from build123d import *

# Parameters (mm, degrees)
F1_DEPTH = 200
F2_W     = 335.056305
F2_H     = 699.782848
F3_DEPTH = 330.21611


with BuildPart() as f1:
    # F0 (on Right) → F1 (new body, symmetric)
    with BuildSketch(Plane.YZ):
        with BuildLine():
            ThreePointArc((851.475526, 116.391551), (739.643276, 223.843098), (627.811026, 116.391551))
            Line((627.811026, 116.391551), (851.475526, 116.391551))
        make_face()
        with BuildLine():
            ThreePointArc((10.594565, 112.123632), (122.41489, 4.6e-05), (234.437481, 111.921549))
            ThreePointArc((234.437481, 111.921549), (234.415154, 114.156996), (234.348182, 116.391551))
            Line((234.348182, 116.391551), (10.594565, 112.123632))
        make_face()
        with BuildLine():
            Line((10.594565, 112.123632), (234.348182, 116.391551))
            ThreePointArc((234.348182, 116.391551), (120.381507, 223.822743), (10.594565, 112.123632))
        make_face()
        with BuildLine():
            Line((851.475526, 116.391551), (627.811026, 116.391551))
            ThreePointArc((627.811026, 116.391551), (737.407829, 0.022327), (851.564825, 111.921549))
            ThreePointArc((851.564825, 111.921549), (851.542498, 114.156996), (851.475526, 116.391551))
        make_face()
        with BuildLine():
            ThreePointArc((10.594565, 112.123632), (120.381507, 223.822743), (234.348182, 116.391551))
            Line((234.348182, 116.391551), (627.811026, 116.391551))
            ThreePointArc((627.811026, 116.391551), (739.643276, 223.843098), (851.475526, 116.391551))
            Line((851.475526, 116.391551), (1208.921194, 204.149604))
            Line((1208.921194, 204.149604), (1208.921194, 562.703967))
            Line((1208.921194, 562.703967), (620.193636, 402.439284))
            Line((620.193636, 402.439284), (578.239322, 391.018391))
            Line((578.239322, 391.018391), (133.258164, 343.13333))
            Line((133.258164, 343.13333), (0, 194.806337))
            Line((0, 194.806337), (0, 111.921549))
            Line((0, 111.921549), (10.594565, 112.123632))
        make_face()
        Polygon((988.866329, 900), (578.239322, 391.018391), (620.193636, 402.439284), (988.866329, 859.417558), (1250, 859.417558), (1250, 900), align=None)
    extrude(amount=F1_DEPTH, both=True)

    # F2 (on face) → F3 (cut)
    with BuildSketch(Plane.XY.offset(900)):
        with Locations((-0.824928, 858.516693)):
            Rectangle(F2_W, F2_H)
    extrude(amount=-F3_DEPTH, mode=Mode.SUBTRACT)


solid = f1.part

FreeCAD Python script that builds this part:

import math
import FreeCAD as App
import Part
import Sketcher

V = App.Vector


def add_polygon(sketch, points):
    """Adds a closed chain of lines whose ends are joined by coincident constraints."""
    first, n = sketch.GeometryCount, len(points)
    for a, b in zip(points, points[1:] + points[:1]):
        sketch.addGeometry(Part.LineSegment(App.Vector(*a, 0), App.Vector(*b, 0)), False)
    for i in range(n):
        sketch.addConstraint(Sketcher.Constraint("Coincident", first + i, 2, first + (i + 1) % n, 1))

doc = App.newDocument("Part")
body = doc.addObject("PartDesign::Body", "Body")

sketch1 = doc.addObject("Sketcher::SketchObject", "Sketch")
body.addObject(sketch1)
sketch1.AttachmentSupport = (doc.YZ_Plane, [""])
sketch1.MapMode = "FlatFace"
sketch1.addGeometry([
    Part.ArcOfCircle(Part.Circle(V(739.6, 111.9, 0), V(0, 0, 1), 111.9), math.radians(178), math.radians(360)),
    Part.ArcOfCircle(Part.Circle(V(739.6, 111.9, 0), V(0, 0, 1), 111.9), math.radians(0), math.radians(2.29)),
    Part.LineSegment(V(851.5, 116.4, 0), V(1208.9, 204.1, 0)),
    Part.LineSegment(V(1208.9, 204.1, 0), V(1208.9, 562.7, 0)),
    Part.LineSegment(V(1208.9, 562.7, 0), V(620.2, 402.4, 0)),
    Part.LineSegment(V(620.2, 402.4, 0), V(988.9, 859.4, 0)),
    Part.LineSegment(V(988.9, 859.4, 0), V(1250, 859.4, 0)),
    Part.LineSegment(V(1250, 859.4, 0), V(1250, 900, 0)),
    Part.LineSegment(V(1250, 900, 0), V(988.9, 900, 0)),
    Part.LineSegment(V(988.9, 900, 0), V(578.2, 391, 0)),
    Part.LineSegment(V(578.2, 391, 0), V(133.3, 343.1, 0)),
    Part.LineSegment(V(133.3, 343.1, 0), V(0, 194.8, 0)),
    Part.LineSegment(V(0, 194.8, 0), V(0, 111.9, 0)),
    Part.LineSegment(V(0, 111.9, 0), V(10.6, 112.1, 0)),
    Part.ArcOfCircle(Part.Circle(V(122.5, 111.9, 0), V(0, 0, 1), 111.9), math.radians(180), math.radians(360)),
    Part.ArcOfCircle(Part.Circle(V(122.5, 111.9, 0), V(0, 0, 1), 111.9), math.radians(0), math.radians(2.29)),
    Part.LineSegment(V(234.3, 116.4, 0), V(627.8, 116.4, 0)),
], False)
sketch1.addConstraint([
    Sketcher.Constraint("Tangent", 0, 2, 1, 1),
    Sketcher.Constraint("Coincident", 1, 2, 2, 1),
    Sketcher.Constraint("Coincident", 2, 2, 3, 1),
    Sketcher.Constraint("Coincident", 3, 2, 4, 1),
    Sketcher.Constraint("Coincident", 4, 2, 5, 1),
    Sketcher.Constraint("Coincident", 5, 2, 6, 1),
    Sketcher.Constraint("Coincident", 6, 2, 7, 1),
    Sketcher.Constraint("Coincident", 7, 2, 8, 1),
    Sketcher.Constraint("Coincident", 8, 2, 9, 1),
    Sketcher.Constraint("Coincident", 9, 2, 10, 1),
    Sketcher.Constraint("Coincident", 10, 2, 11, 1),
    Sketcher.Constraint("Coincident", 11, 2, 12, 1),
    Sketcher.Constraint("Coincident", 12, 2, 13, 1),
    Sketcher.Constraint("Coincident", 13, 2, 14, 1),
    Sketcher.Constraint("Tangent", 14, 2, 15, 1),
    Sketcher.Constraint("Coincident", 15, 2, 16, 1),
    Sketcher.Constraint("Coincident", 16, 2, 0, 1),
    Sketcher.Constraint("Vertical", 3),
    Sketcher.Constraint("Horizontal", 6),
    Sketcher.Constraint("Vertical", 7),
    Sketcher.Constraint("Horizontal", 8),
    Sketcher.Constraint("Vertical", 12),
    Sketcher.Constraint("Horizontal", 16),
    Sketcher.Constraint("Equal", 0, 14),
    Sketcher.Constraint("Equal", 1, 15),
    Sketcher.Constraint("PointOnObject", 11, 2, -2),
    Sketcher.Constraint("Parallel", 5, 9),
    Sketcher.Constraint("Horizontal", 0, 3, 14, 3),
    Sketcher.Constraint("Horizontal", 14, 3, 0, 2),
    Sketcher.Constraint("Horizontal", 0, 2, 12, 2),
    Sketcher.Constraint("Horizontal", 12, 2, 14, 2),
    Sketcher.Constraint("Horizontal", 1, 2, 15, 2),
    Sketcher.Constraint("Vertical", 5, 2, 8, 2),
    Sketcher.Constraint("DistanceX", -1, 1, 6, 2, 1250.0),
    Sketcher.Constraint("DistanceY", -1, 1, 7, 2, 900.0),
    Sketcher.Constraint("Radius", 0, 111.921549),
    Sketcher.Constraint("DistanceY", 14, 3, 1, 2, 4.470001),
    Sketcher.Constraint("Radius", 1, 111.921252),
    Sketcher.Constraint("DistanceX", 6, 1, 6, 2, 261.133671),
    Sketcher.Constraint("DistanceY", 12, 2, 12, 1, 82.884788),
    Sketcher.Constraint("DistanceX", 13, 2, 10, 2, 122.663599),
    Sketcher.Constraint("DistanceY", 13, 2, 10, 2, 231.009698),
    Sketcher.Constraint("Distance", 10, 447.550232),
    Sketcher.Constraint("DistanceX", 16, 1, 16, 2, 393.462844),
    Sketcher.Constraint("DistanceY", 3, 1, 3, 2, 358.554363),
    Sketcher.Constraint("DistanceY", 7, 1, 7, 2, 40.582442),
    Sketcher.Constraint("DistanceY", -1, 1, 0, 3, 111.921549),
    Sketcher.Constraint("DistanceX", -1, 1, 14, 3, 122.515932),
    Sketcher.Constraint("DistanceX", -1, 1, 9, 2, 578.239322),
    Sketcher.Constraint("DistanceY", -1, 1, 9, 2, 391.018391),
    Sketcher.Constraint("DistanceX", 0, 2, 2, 2, 357.356369),
    Sketcher.Constraint("DistanceY", 0, 2, 3, 2, 450.782418),
    Sketcher.Constraint("DistanceX", 4, 2, 0, 3, 119.44964),
])
pad1 = doc.addObject("PartDesign::Pad", "Pad")
body.addObject(pad1)
pad1.Profile = sketch1
pad1.Length = 400
pad1.Midplane = True

sketch2 = doc.addObject("Sketcher::SketchObject", "Sketch001")
body.addObject(sketch2)
sketch2.AttachmentSupport = (doc.XY_Plane, [""])
sketch2.MapMode = "FlatFace"
sketch2.AttachmentOffset = App.Placement(V(0, 0, 900), App.Rotation())
add_polygon(sketch2, [(-168, 1208), (-168, 509), (167, 509), (167, 1208)])
sketch2.addConstraint([
    Sketcher.Constraint("Vertical", 0),
    Sketcher.Constraint("Horizontal", 1),
    Sketcher.Constraint("Vertical", 2),
    Sketcher.Constraint("Horizontal", 3),
    Sketcher.Constraint("DistanceX", 1, 1, 1, 2, 335.056305),
    Sketcher.Constraint("DistanceY", 0, 2, 0, 1, 699.782848),
    Sketcher.Constraint("DistanceX", 0, 2, -1, 1, 168.353081),
    Sketcher.Constraint("DistanceY", -1, 1, 0, 2, 508.625269),
])
pocket1 = doc.addObject("PartDesign::Pocket", "Pocket")
body.addObject(pocket1)
pocket1.Profile = sketch2
pocket1.Length = 330.21611

doc.recompute()
